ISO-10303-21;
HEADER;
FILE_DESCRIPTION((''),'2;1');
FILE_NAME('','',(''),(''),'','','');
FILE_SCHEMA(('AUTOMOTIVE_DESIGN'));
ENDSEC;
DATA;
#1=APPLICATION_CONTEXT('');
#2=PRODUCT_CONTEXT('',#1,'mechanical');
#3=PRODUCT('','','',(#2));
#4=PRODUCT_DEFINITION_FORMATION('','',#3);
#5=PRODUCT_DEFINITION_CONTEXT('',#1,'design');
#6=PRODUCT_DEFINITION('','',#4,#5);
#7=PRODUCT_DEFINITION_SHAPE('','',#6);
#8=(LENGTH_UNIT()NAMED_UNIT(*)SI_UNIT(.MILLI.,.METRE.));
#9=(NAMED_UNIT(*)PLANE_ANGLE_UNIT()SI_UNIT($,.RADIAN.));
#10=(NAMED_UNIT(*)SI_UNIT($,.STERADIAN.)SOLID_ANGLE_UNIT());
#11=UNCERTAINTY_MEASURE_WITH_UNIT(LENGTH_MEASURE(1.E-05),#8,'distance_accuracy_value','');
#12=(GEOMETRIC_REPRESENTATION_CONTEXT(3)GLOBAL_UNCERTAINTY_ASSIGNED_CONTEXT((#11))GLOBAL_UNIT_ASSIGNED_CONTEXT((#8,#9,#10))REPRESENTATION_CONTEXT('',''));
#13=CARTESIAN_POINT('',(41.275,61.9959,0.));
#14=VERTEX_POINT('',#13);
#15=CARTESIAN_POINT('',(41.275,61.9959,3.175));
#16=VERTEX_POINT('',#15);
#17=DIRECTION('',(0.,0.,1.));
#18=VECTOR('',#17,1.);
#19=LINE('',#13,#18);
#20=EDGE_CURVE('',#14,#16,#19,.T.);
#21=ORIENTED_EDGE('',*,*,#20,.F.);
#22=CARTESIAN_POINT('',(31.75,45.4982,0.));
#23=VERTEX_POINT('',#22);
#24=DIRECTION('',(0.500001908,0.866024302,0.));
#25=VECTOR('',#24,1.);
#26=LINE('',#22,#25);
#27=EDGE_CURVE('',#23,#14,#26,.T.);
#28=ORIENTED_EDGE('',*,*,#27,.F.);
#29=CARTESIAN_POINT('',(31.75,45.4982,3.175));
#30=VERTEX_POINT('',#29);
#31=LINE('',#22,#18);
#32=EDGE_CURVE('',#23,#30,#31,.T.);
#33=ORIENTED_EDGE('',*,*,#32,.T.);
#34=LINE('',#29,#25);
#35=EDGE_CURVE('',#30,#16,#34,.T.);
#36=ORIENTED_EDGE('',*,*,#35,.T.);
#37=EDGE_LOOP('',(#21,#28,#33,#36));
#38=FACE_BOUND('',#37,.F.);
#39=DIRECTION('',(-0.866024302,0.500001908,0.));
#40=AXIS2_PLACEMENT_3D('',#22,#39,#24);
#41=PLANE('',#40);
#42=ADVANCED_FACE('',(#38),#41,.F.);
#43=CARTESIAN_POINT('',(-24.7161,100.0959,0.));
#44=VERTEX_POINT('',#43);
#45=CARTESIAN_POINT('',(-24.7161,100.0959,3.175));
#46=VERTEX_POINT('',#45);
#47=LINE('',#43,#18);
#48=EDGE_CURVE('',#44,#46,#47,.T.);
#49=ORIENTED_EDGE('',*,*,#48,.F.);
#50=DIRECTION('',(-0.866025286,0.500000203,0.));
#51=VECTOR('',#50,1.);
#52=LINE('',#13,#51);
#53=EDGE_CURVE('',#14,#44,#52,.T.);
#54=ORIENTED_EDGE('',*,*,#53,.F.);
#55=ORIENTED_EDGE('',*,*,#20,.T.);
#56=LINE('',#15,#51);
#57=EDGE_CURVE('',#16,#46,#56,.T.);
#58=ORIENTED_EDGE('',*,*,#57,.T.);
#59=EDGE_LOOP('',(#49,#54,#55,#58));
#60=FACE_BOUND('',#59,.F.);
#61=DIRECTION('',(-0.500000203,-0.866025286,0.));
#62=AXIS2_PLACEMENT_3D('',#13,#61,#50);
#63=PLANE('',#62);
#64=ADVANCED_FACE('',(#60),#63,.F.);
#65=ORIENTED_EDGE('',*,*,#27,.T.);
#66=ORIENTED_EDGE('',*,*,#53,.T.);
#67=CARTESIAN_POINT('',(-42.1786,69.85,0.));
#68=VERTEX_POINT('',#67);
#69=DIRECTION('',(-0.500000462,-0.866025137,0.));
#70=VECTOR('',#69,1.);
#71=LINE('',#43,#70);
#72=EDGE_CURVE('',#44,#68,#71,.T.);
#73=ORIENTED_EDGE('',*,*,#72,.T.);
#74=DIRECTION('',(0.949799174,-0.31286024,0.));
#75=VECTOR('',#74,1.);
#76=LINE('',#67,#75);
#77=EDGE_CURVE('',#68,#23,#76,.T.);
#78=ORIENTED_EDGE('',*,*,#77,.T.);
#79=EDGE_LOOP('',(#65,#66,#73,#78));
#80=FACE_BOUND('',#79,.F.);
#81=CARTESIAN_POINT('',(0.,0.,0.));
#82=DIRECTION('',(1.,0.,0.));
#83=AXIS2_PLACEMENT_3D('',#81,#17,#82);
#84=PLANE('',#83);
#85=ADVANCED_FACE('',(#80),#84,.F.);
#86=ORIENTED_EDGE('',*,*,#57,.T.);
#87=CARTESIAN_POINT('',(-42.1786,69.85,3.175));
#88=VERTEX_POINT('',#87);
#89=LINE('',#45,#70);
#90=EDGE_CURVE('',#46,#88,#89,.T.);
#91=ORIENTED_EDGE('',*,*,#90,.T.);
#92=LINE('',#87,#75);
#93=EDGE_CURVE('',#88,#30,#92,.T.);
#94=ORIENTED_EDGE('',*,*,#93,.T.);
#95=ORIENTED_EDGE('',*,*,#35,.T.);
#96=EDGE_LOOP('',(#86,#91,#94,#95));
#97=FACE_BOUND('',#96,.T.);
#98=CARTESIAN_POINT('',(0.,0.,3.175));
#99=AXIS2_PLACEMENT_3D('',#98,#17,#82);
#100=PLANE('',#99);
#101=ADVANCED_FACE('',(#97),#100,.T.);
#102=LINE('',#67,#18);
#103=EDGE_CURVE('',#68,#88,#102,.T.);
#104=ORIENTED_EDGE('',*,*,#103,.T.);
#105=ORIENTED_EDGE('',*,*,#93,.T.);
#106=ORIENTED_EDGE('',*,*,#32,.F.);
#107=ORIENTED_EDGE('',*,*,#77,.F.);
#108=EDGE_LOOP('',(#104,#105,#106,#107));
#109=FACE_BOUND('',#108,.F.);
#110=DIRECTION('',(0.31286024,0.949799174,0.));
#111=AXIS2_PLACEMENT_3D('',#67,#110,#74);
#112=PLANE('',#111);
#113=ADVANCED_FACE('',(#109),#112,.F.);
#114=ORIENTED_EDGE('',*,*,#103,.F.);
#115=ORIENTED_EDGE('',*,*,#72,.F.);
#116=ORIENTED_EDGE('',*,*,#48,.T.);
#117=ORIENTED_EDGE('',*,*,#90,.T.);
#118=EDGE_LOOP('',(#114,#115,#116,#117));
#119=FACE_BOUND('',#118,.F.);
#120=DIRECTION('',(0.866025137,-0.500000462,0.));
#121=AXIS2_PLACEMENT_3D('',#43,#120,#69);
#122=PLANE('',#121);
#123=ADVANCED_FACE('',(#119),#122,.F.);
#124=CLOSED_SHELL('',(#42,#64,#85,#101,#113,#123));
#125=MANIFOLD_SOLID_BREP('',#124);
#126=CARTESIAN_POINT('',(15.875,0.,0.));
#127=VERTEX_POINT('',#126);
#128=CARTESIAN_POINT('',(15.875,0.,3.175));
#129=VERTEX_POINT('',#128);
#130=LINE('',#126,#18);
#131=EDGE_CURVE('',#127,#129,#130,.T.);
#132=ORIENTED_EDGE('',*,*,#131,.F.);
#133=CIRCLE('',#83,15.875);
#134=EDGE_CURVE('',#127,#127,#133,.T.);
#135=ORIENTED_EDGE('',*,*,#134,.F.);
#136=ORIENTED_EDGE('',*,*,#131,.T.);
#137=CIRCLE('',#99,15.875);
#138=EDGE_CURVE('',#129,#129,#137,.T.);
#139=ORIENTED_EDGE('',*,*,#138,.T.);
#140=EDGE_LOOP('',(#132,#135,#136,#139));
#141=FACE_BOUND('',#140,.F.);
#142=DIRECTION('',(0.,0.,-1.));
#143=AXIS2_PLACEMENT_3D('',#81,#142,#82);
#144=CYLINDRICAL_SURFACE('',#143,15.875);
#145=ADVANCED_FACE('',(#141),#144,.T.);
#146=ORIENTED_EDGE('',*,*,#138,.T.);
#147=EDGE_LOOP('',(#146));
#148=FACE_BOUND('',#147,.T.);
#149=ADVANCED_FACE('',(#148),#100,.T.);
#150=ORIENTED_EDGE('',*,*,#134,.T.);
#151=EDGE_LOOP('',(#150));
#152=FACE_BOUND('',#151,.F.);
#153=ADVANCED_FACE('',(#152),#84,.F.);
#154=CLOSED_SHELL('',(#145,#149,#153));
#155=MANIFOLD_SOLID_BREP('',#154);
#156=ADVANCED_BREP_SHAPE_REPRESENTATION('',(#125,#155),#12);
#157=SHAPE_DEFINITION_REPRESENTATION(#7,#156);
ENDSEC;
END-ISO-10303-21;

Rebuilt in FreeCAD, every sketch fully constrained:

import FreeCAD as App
import Part
import Sketcher
from FreeCAD import Vector
Q = App.Units.Quantity

doc = App.newDocument("Part")
body = doc.addObject("PartDesign::Body", "Body")
body.AllowCompound = True

# Sketch on XY plane
sketch1 = body.newObject("Sketcher::SketchObject", "Sketch")
sketch1.AttachmentSupport = (doc.getObject("XY_Plane"), [""])
sketch1.MapMode = "FlatFace"
sketch1.addGeometry([
    Part.Circle(Vector(0, 0, 0), Vector(0, 0, 1), 15.875),  # 0
    Part.LineSegment(Vector(-24.7161, 100.0959, 0), Vector(-42.1786, 69.85, 0)),  # 1
    Part.LineSegment(Vector(-42.1786, 69.85, 0), Vector(31.75, 45.4982, 0)),  # 2
    Part.LineSegment(Vector(31.75, 45.4982, 0), Vector(41.275, 61.9959, 0)),  # 3
    Part.LineSegment(Vector(41.275, 61.9959, 0), Vector(-24.7161, 100.0959, 0)),  # 4
], False)
sketch1.addConstraint([
    Sketcher.Constraint("Coincident", 1, 2, 2, 1),
    Sketcher.Constraint("Coincident", 2, 2, 3, 1),
    Sketcher.Constraint("Coincident", 3, 2, 4, 1),
    Sketcher.Constraint("Coincident", 4, 2, 1, 1),
    Sketcher.Constraint("Coincident", 0, 3, -1, 1),
    Sketcher.Constraint("Parallel", 1, 3),
    Sketcher.Constraint("Perpendicular", 3, 4),
    Sketcher.Constraint("Diameter", 0, Q("1.25 in")),
    Sketcher.Constraint("Distance", 4, Q("3 in")),
    Sketcher.Constraint("Distance", 3, Q("0.75 in")),
    Sketcher.Constraint("DistanceY", -1, 1, 1, 2, Q("2.75 in")),
    Sketcher.Constraint("DistanceX", -1, 1, 2, 2, Q("1.25 in")),
    Sketcher.Constraint("Distance", 1, Q("1.375 in")),
    Sketcher.Constraint("Angle", 1, Q("-120 deg")),
])
pad1 = body.newObject("PartDesign::Pad", "Pad")
pad1.Profile = sketch1
pad1.Length = Q("0.125 in")

doc.recompute()
